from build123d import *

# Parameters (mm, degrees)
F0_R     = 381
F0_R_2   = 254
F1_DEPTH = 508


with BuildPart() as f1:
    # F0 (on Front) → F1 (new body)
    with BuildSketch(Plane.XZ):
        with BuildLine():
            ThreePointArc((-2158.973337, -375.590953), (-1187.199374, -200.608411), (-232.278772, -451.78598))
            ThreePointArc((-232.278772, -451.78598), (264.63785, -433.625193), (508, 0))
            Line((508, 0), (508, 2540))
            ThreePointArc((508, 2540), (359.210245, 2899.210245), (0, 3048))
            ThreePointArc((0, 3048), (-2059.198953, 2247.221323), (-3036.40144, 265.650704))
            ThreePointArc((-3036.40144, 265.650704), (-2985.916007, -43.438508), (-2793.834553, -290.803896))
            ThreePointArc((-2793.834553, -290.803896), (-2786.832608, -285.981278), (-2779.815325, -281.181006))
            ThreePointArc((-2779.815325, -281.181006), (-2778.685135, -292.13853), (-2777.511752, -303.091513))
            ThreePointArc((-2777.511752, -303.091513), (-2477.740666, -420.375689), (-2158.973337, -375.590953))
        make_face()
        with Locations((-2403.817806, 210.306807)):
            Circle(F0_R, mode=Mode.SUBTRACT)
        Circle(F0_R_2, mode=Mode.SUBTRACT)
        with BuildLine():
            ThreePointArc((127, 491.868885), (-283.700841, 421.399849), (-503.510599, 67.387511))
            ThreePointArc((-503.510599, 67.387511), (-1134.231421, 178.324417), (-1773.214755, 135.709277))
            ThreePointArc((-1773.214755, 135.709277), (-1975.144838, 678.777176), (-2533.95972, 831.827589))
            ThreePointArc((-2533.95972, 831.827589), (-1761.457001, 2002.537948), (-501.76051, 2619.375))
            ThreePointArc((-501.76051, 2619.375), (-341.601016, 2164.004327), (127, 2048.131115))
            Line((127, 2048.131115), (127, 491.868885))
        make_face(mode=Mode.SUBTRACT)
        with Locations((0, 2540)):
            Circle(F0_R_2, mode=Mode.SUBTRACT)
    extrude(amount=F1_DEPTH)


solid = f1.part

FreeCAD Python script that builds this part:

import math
import FreeCAD as App
import Part
import Sketcher

V = App.Vector
Q = App.Units.Quantity

doc = App.newDocument("Part")
body = doc.addObject("PartDesign::Body", "Body")

# Sketch on XZ plane
sketch1 = body.newObject("Sketcher::SketchObject", "Sketch")
sketch1.AttachmentSupport = (doc.getObject("XZ_Plane"), [""])
sketch1.MapMode = "FlatFace"
sketch1.addGeometry([
    Part.ArcOfCircle(Part.Circle(V(-1278, -2485, 0), V(0, 0, 1), 2286), math.radians(63), math.radians(113)),  # 0
    Part.ArcOfCircle(Part.Circle(V(0, 0, 0), V(0, 0, 1), 508), math.radians(-117), math.radians(0)),  # 1
    Part.LineSegment(V(508, 0, 0), V(508, 2540, 0)),  # 2
    Part.ArcOfCircle(Part.Circle(V(0, 2540, 0), V(0, 0, 1), 508), math.radians(0), math.radians(90)),  # 3
    Part.ArcOfCircle(Part.Circle(V(0, 0, 0), V(0, 0, 1), 3048), math.radians(90), math.radians(175)),  # 4
    Part.ArcOfCircle(Part.Circle(V(-2404, 210, 0), V(0, 0, 1), 635), math.radians(175), math.radians(232)),  # 5
    Part.ArcOfCircle(Part.Circle(V(-1278, -2485, 0), V(0, 0, 1), 2667), math.radians(124.28), math.radians(124.65)),  # 6
    Part.ArcOfCircle(Part.Circle(V(0, 0, 0), V(0, 0, 1), 2794), math.radians(-174.22), math.radians(-173.77)),  # 7
    Part.ArcOfCircle(Part.Circle(V(-2404, 210, 0), V(0, 0, 1), 635), math.radians(-126), math.radians(-67)),  # 8
    Part.Circle(V(-2404, 210, 0), V(0, 0, 1), 381),  # 9
    Part.Circle(V(0, 0, 0), V(0, 0, 1), 254),  # 10
    Part.LineSegment(V(127, 2048, 0), V(127, 492, 0)),  # 11
    Part.ArcOfCircle(Part.Circle(V(0, 0, 0), V(0, 0, 1), 508), math.radians(76), math.radians(172)),  # 12
    Part.ArcOfCircle(Part.Circle(V(-1278, -2485, 0), V(0, 0, 1), 2667), math.radians(73), math.radians(101)),  # 13
    Part.ArcOfCircle(Part.Circle(V(-2404, 210, 0), V(0, 0, 1), 635), math.radians(-7), math.radians(102)),  # 14
    Part.ArcOfCircle(Part.Circle(V(0, 0, 0), V(0, 0, 1), 2667), math.radians(101), math.radians(162)),  # 15
    Part.ArcOfCircle(Part.Circle(V(0, 2540, 0), V(0, 0, 1), 508), math.radians(171), math.radians(284)),  # 16
    Part.Circle(V(0, 2540, 0), V(0, 0, 1), 254),  # 17
], False)
sketch1.addConstraint([
    Sketcher.Constraint("Tangent", 0, 1, 1, 1),
    Sketcher.Constraint("Tangent", 1, 2, 2, 1),
    Sketcher.Constraint("Tangent", 2, 2, 3, 1),
    Sketcher.Constraint("Tangent", 3, 2, 4, 1),
    Sketcher.Constraint("Tangent", 4, 2, 5, 1),
    Sketcher.Constraint("Coincident", 5, 2, 6, 2),
    Sketcher.Constraint("Coincident", 6, 1, 7, 1),
    Sketcher.Constraint("Coincident", 7, 2, 8, 1),
    Sketcher.Constraint("Tangent", 8, 2, 0, 2),
    Sketcher.Constraint("Coincident", 11, 2, 12, 1),
    Sketcher.Constraint("Coincident", 12, 2, 13, 1),
    Sketcher.Constraint("Coincident", 13, 2, 14, 1),
    Sketcher.Constraint("Coincident", 14, 2, 15, 2),
    Sketcher.Constraint("Coincident", 15, 1, 16, 1),
    Sketcher.Constraint("Coincident", 16, 2, 11, 1),
    Sketcher.Constraint("Vertical", 2),
    Sketcher.Constraint("Vertical", 11),
    Sketcher.Constraint("Coincident", 1, 3, -1, 1),
    Sketcher.Constraint("Coincident", 4, 3, -1, 1),
    Sketcher.Constraint("Coincident", 10, 3, -1, 1),
    Sketcher.Constraint("Coincident", 12, 3, -1, 1),
    Sketcher.Constraint("Coincident", 15, 3, -1, 1),
    Sketcher.Constraint("Coincident", 8, 3, 5, 3),
    Sketcher.Constraint("Coincident", 9, 3, 5, 3),
    Sketcher.Constraint("Coincident", 13, 3, 0, 3),
    Sketcher.Constraint("Coincident", 14, 3, 5, 3),
    Sketcher.Constraint("Coincident", 16, 3, 3, 3),
    Sketcher.Constraint("Coincident", 17, 3, 3, 3),
    Sketcher.Constraint("Equal", 1, 3),
    Sketcher.Constraint("Equal", 5, 8),
    Sketcher.Constraint("Equal", 3, 12),
    Sketcher.Constraint("Equal", 8, 14),
    Sketcher.Constraint("Equal", 12, 16),
    Sketcher.Constraint("Equal", 10, 17),
    Sketcher.Constraint("Diameter", 9, Q("30 in")),
    Sketcher.Constraint("Diameter", 10, Q("20 in")),
    Sketcher.Constraint("Radius", 0, Q("90 in")),
    Sketcher.Constraint("Radius", 1, Q("20 in")),
    Sketcher.Constraint("Radius", 4, Q("120 in")),
    Sketcher.Constraint("Radius", 5, Q("25 in")),
    Sketcher.Constraint("Radius", 13, Q("105.0000002 in")),
    Sketcher.Constraint("Radius", 15, Q("105 in")),
    Sketcher.Constraint("DistanceX", -1, 1, 11, 2, Q("5 in")),
    Sketcher.Constraint("Radius", 6, Q("2666.997299 mm")),
    Sketcher.Constraint("Radius", 7, Q("2793.9612 mm")),
    Sketcher.Constraint("DistanceY", 0, 3, 5, 3, Q("2695.1297 mm")),
    Sketcher.Constraint("DistanceY", 0, 3, 6, 3, Q("0.002198 mm")),
    Sketcher.Constraint("DistanceX", 5, 2, 7, 2, Q("16.322801 mm")),
    Sketcher.Constraint("DistanceX", 6, 3, -1, 1, Q("1277.534819 mm")),
    Sketcher.Constraint("DistanceX", 7, 3, -1, 1, Q("0.038591 mm")),
])
pad1 = body.newObject("PartDesign::Pad", "Pad")
pad1.Profile = sketch1
pad1.Length = Q("20 in")

doc.recompute()
